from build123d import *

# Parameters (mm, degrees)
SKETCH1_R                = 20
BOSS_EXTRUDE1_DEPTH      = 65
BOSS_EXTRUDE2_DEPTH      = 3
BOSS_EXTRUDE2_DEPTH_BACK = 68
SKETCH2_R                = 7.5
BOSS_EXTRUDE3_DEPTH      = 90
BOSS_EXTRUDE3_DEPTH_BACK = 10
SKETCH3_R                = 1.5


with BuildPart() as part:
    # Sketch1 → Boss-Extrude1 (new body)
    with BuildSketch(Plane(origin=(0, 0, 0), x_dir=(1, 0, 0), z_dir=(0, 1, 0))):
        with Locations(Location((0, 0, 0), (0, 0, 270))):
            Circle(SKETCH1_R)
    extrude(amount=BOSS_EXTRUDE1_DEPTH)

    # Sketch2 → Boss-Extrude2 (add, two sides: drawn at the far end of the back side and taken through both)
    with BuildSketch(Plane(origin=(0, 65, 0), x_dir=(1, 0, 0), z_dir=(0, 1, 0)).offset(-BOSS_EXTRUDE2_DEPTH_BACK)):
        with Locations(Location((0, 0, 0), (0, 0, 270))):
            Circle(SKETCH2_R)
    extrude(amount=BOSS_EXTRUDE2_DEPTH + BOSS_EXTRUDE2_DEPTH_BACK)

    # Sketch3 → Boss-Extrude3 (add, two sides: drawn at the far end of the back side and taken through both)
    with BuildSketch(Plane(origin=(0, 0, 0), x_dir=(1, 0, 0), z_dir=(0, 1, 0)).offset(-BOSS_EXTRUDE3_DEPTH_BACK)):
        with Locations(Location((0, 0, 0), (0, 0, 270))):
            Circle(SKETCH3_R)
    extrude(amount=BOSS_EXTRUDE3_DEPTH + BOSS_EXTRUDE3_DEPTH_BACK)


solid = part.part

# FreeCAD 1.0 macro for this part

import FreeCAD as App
import Part
import Sketcher
from FreeCAD import Vector
Q = App.Units.Quantity

doc = App.newDocument("Part")
body = doc.addObject("PartDesign::Body", "Body")

# Sketch on XZ plane
sketch1 = body.newObject("Sketcher::SketchObject", "Sketch")
sketch1.AttachmentSupport = (doc.getObject("XZ_Plane"), [""])
sketch1.MapMode = "FlatFace"
sketch1.addGeometry(Part.Circle(Vector(0, 0, 0), Vector(0, 0, 1), 20), False)
sketch1.addConstraint(Sketcher.Constraint("Coincident", 0, 3, -1, 1))
sketch1.addConstraint(Sketcher.Constraint("Diameter", 0, Q("40 mm")))
pad1 = body.newObject("PartDesign::Pad", "Pad")
pad1.Profile = sketch1
pad1.Length = 65
pad1.Reversed = True

# Sketch on XZ plane
sketch2 = body.newObject("Sketcher::SketchObject", "Sketch001")
sketch2.AttachmentSupport = (doc.getObject("XZ_Plane"), [""])
sketch2.MapMode = "FlatFace"
sketch2.AttachmentOffset = App.Placement(Vector(0, 0, -65), App.Rotation())
sketch2.addGeometry(Part.Circle(Vector(0, 0, 0), Vector(0, 0, 1), 8), False)
sketch2.addConstraint(Sketcher.Constraint("Coincident", 0, 3, -1, 1))
sketch2.addConstraint(Sketcher.Constraint("Diameter", 0, Q("15 mm")))
pad2 = body.newObject("PartDesign::Pad", "Pad001")
pad2.Profile = sketch2
pad2.Type = "TwoLengths"
pad2.Length = 3
pad2.Length2 = 68
pad2.Reversed = True

# Sketch on XZ plane
sketch3 = body.newObject("Sketcher::SketchObject", "Sketch002")
sketch3.AttachmentSupport = (doc.getObject("XZ_Plane"), [""])
sketch3.MapMode = "FlatFace"
sketch3.addGeometry(Part.Circle(Vector(0, 0, 0), Vector(0, 0, 1), 1.5), False)
sketch3.addConstraint(Sketcher.Constraint("Coincident", 0, 3, -1, 1))
sketch3.addConstraint(Sketcher.Constraint("Diameter", 0, Q("3 mm")))
pad3 = body.newObject("PartDesign::Pad", "Pad002")
pad3.Profile = sketch3
pad3.Type = "TwoLengths"
pad3.Length = 90
pad3.Length2 = 10
pad3.Reversed = True

doc.recompute()
